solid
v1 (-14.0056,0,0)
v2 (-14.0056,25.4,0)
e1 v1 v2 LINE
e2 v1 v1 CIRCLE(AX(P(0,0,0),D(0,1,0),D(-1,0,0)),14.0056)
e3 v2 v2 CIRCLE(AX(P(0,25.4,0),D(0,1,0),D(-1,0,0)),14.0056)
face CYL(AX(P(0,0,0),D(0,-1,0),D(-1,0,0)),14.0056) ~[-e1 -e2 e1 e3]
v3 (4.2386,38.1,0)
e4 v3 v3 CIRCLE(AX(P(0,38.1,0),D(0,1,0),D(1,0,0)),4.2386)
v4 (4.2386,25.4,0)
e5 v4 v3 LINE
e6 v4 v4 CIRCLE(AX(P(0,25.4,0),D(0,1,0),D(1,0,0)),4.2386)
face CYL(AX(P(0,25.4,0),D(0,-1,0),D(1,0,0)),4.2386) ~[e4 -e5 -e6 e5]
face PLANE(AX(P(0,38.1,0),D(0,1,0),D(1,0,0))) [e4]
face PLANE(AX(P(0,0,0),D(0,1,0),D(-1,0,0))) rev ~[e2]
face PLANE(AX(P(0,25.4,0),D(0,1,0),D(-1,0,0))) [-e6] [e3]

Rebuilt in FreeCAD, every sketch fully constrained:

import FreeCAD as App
import Part
import Sketcher
from FreeCAD import Vector
Q = App.Units.Quantity

doc = App.newDocument("Part")
params = doc.addObject("Spreadsheet::Sheet", "Params")
for row, (alias, value) in enumerate([
    ("pad1_length", "1 in"),
    ("pad2_length", "0.5 in"),
], start=1):
    params.set(f"A{row}", alias)
    params.set(f"B{row}", "=" + value)
    params.setAlias(f"B{row}", alias)

body = doc.addObject("PartDesign::Body", "Body")

# Sketch on XZ plane
sketch1 = doc.addObject("Sketcher::SketchObject", "Sketch")
body.addObject(sketch1)
sketch1.AttachmentSupport = (doc.XZ_Plane, [""])
sketch1.MapMode = "FlatFace"
sketch1.addGeometry(Part.Circle(Vector(0, 0, 0), Vector(0, 0, 1), 14.0056), False)
sketch1.addConstraint(Sketcher.Constraint("Coincident", 0, 3, -1, 1))
sketch1.addConstraint(Sketcher.Constraint("Diameter", 0, Q("1.1028 in")))
pad1 = doc.addObject("PartDesign::Pad", "Pad")
body.addObject(pad1)
pad1.Profile = sketch1
pad1.setExpression("Length", "Params.pad1_length")
pad1.Reversed = True

# Sketch on XZ plane
sketch2 = doc.addObject("Sketcher::SketchObject", "Sketch001")
body.addObject(sketch2)
sketch2.AttachmentSupport = (doc.XZ_Plane, [""])
sketch2.MapMode = "FlatFace"
sketch2.AttachmentOffset = App.Placement(Vector(0, 0, -1 * 25.4), App.Rotation())
sketch2.addGeometry(Part.Circle(Vector(0, 0, 0), Vector(0, 0, 1), 4.2386), False)
sketch2.addConstraint(Sketcher.Constraint("Coincident", 0, 3, -1, 1))
sketch2.addConstraint(Sketcher.Constraint("Diameter", 0, Q("8.4772 mm")))
pad2 = doc.addObject("PartDesign::Pad", "Pad001")
body.addObject(pad2)
pad2.Profile = sketch2
pad2.setExpression("Length", "Params.pad2_length")
pad2.Reversed = True

doc.recompute()
